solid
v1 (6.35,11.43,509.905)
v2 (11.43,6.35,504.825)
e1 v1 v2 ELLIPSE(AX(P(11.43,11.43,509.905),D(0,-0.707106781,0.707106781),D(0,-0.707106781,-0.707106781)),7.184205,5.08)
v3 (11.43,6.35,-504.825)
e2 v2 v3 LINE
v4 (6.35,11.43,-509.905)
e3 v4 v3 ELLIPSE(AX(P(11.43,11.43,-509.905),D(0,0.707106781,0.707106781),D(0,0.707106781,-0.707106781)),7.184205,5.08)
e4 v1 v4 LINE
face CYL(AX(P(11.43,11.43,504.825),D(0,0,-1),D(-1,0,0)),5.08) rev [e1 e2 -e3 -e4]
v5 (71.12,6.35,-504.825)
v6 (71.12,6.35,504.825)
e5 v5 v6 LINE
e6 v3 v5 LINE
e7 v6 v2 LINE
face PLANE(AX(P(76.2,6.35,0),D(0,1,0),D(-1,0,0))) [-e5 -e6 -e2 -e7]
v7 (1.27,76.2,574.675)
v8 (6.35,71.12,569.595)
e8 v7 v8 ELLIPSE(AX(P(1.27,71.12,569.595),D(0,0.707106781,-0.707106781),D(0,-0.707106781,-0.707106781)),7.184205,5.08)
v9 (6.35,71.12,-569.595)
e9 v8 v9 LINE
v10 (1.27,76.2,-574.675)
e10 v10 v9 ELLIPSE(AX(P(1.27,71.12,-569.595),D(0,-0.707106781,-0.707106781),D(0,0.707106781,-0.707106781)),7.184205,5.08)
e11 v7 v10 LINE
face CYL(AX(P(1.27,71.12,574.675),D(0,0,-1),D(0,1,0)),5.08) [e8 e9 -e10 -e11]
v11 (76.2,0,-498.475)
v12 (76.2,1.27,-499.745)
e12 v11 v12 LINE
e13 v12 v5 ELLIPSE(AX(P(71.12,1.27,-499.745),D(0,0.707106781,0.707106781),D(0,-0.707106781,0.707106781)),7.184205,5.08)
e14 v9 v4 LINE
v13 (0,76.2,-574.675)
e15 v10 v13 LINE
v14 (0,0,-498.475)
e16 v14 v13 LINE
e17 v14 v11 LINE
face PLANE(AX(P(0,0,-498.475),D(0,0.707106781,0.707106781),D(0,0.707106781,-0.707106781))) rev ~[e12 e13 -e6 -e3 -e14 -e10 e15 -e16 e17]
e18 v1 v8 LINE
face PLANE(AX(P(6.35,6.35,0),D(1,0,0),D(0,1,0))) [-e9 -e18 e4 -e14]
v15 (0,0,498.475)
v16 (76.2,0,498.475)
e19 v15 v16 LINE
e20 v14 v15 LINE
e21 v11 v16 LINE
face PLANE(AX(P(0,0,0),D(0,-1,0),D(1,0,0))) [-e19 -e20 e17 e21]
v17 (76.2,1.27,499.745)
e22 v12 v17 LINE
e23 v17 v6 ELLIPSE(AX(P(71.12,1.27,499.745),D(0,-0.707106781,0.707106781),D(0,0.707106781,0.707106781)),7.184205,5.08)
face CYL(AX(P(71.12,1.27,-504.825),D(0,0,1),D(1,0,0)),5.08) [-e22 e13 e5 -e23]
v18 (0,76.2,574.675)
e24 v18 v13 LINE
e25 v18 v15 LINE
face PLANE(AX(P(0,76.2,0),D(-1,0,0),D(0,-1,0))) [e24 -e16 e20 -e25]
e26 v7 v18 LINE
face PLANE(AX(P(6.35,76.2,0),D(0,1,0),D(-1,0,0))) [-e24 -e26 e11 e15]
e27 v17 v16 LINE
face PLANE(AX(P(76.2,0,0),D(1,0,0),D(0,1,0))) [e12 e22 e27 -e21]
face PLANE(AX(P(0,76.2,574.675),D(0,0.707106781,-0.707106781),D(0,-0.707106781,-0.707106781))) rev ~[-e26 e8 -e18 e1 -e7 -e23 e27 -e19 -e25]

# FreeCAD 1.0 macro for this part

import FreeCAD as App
import Part
import Sketcher

V = App.Vector
Q = App.Units.Quantity


def edges_at(feature, points):
    """Names of the edges that pass closest to the given points."""
    edges = feature.Shape.Edges
    near = lambda p: min(range(len(edges)), key=lambda i: edges[i].distToShape(Part.Vertex(*p))[0])
    return sorted({f"Edge{near(p) + 1}" for p in points})


def add_polygon(sketch, points):
    """Adds a closed chain of lines whose ends are joined by coincident constraints."""
    first, n = sketch.GeometryCount, len(points)
    for a, b in zip(points, points[1:] + points[:1]):
        sketch.addGeometry(Part.LineSegment(App.Vector(*a, 0), App.Vector(*b, 0)), False)
    for i in range(n):
        sketch.addConstraint(Sketcher.Constraint("Coincident", first + i, 2, first + (i + 1) % n, 1))

doc = App.newDocument("Part")
body = doc.addObject("PartDesign::Body", "Body")

# Sketch on XY plane
sketch1 = body.newObject("Sketcher::SketchObject", "Sketch")
sketch1.AttachmentSupport = (doc.getObject("XY_Plane"), [""])
sketch1.MapMode = "FlatFace"
add_polygon(sketch1, [(0, 76), (0, 0), (76, 0), (76, 6), (6, 6), (6, 76)])  # lines 0-5
sketch1.addConstraint([
    Sketcher.Constraint("Vertical", 0),
    Sketcher.Constraint("Horizontal", 1),
    Sketcher.Constraint("Vertical", 2),
    Sketcher.Constraint("Horizontal", 3),
    Sketcher.Constraint("Vertical", 4),
    Sketcher.Constraint("Horizontal", 5),
    Sketcher.Constraint("Coincident", 0, 2, -1, 1),
    Sketcher.Constraint("Equal", 1, 0),
    Sketcher.Constraint("Equal", 5, 2),
    Sketcher.Constraint("DistanceX", 1, 1, 1, 2, Q("3 in")),
    Sketcher.Constraint("DistanceX", 3, 2, 3, 1, Q("2.75 in")),
])
pad1 = body.newObject("PartDesign::Pad", "Pad")
pad1.Profile = sketch1
pad1.Length = Q("45.25 in")
pad1.Midplane = True

# Sketch on YZ plane
sketch2 = body.newObject("Sketcher::SketchObject", "Sketch001")
sketch2.AttachmentSupport = (doc.getObject("YZ_Plane"), [""])
sketch2.MapMode = "FlatFace"
add_polygon(sketch2, [(76, -575), (0, -575), (0, -498)])  # lines 0-2
add_polygon(sketch2, [(0, 575), (76, 575), (0, 498)])  # lines 3-5
sketch2.addConstraint([
    Sketcher.Constraint("Horizontal", 0),
    Sketcher.Constraint("Vertical", 1),
    Sketcher.Constraint("Horizontal", 3),
    Sketcher.Constraint("Vertical", 5),
    Sketcher.Constraint("Symmetric", 1, 2, 4, 2, -1, 1),
    Sketcher.Constraint("Symmetric", 2, 2, 3, 2, -1),
    Sketcher.Constraint("PointOnObject", 0, 2, -2),
    Sketcher.Constraint("Perpendicular", 2, 4),
    Sketcher.Constraint("DistanceX", 0, 2, 0, 1, Q("3 in")),
    Sketcher.Constraint("DistanceY", 1, 2, 3, 2, Q("42.25 in")),
])
pocket1 = body.newObject("PartDesign::Pocket", "Pocket")
pocket1.Profile = sketch2
pocket1.Length = Q("3 in")
pocket1.Reversed = True
doc.recompute()

fillet = body.newObject("PartDesign::Fillet", "Fillet")
fillet.Base = (pocket1, edges_at(pocket1, [(6.35, 76.2, 0), (6.35, 6.35, 0), (76.2, 6.35, 0)]))
fillet.Radius = Q("0.2 in")

doc.recompute()
